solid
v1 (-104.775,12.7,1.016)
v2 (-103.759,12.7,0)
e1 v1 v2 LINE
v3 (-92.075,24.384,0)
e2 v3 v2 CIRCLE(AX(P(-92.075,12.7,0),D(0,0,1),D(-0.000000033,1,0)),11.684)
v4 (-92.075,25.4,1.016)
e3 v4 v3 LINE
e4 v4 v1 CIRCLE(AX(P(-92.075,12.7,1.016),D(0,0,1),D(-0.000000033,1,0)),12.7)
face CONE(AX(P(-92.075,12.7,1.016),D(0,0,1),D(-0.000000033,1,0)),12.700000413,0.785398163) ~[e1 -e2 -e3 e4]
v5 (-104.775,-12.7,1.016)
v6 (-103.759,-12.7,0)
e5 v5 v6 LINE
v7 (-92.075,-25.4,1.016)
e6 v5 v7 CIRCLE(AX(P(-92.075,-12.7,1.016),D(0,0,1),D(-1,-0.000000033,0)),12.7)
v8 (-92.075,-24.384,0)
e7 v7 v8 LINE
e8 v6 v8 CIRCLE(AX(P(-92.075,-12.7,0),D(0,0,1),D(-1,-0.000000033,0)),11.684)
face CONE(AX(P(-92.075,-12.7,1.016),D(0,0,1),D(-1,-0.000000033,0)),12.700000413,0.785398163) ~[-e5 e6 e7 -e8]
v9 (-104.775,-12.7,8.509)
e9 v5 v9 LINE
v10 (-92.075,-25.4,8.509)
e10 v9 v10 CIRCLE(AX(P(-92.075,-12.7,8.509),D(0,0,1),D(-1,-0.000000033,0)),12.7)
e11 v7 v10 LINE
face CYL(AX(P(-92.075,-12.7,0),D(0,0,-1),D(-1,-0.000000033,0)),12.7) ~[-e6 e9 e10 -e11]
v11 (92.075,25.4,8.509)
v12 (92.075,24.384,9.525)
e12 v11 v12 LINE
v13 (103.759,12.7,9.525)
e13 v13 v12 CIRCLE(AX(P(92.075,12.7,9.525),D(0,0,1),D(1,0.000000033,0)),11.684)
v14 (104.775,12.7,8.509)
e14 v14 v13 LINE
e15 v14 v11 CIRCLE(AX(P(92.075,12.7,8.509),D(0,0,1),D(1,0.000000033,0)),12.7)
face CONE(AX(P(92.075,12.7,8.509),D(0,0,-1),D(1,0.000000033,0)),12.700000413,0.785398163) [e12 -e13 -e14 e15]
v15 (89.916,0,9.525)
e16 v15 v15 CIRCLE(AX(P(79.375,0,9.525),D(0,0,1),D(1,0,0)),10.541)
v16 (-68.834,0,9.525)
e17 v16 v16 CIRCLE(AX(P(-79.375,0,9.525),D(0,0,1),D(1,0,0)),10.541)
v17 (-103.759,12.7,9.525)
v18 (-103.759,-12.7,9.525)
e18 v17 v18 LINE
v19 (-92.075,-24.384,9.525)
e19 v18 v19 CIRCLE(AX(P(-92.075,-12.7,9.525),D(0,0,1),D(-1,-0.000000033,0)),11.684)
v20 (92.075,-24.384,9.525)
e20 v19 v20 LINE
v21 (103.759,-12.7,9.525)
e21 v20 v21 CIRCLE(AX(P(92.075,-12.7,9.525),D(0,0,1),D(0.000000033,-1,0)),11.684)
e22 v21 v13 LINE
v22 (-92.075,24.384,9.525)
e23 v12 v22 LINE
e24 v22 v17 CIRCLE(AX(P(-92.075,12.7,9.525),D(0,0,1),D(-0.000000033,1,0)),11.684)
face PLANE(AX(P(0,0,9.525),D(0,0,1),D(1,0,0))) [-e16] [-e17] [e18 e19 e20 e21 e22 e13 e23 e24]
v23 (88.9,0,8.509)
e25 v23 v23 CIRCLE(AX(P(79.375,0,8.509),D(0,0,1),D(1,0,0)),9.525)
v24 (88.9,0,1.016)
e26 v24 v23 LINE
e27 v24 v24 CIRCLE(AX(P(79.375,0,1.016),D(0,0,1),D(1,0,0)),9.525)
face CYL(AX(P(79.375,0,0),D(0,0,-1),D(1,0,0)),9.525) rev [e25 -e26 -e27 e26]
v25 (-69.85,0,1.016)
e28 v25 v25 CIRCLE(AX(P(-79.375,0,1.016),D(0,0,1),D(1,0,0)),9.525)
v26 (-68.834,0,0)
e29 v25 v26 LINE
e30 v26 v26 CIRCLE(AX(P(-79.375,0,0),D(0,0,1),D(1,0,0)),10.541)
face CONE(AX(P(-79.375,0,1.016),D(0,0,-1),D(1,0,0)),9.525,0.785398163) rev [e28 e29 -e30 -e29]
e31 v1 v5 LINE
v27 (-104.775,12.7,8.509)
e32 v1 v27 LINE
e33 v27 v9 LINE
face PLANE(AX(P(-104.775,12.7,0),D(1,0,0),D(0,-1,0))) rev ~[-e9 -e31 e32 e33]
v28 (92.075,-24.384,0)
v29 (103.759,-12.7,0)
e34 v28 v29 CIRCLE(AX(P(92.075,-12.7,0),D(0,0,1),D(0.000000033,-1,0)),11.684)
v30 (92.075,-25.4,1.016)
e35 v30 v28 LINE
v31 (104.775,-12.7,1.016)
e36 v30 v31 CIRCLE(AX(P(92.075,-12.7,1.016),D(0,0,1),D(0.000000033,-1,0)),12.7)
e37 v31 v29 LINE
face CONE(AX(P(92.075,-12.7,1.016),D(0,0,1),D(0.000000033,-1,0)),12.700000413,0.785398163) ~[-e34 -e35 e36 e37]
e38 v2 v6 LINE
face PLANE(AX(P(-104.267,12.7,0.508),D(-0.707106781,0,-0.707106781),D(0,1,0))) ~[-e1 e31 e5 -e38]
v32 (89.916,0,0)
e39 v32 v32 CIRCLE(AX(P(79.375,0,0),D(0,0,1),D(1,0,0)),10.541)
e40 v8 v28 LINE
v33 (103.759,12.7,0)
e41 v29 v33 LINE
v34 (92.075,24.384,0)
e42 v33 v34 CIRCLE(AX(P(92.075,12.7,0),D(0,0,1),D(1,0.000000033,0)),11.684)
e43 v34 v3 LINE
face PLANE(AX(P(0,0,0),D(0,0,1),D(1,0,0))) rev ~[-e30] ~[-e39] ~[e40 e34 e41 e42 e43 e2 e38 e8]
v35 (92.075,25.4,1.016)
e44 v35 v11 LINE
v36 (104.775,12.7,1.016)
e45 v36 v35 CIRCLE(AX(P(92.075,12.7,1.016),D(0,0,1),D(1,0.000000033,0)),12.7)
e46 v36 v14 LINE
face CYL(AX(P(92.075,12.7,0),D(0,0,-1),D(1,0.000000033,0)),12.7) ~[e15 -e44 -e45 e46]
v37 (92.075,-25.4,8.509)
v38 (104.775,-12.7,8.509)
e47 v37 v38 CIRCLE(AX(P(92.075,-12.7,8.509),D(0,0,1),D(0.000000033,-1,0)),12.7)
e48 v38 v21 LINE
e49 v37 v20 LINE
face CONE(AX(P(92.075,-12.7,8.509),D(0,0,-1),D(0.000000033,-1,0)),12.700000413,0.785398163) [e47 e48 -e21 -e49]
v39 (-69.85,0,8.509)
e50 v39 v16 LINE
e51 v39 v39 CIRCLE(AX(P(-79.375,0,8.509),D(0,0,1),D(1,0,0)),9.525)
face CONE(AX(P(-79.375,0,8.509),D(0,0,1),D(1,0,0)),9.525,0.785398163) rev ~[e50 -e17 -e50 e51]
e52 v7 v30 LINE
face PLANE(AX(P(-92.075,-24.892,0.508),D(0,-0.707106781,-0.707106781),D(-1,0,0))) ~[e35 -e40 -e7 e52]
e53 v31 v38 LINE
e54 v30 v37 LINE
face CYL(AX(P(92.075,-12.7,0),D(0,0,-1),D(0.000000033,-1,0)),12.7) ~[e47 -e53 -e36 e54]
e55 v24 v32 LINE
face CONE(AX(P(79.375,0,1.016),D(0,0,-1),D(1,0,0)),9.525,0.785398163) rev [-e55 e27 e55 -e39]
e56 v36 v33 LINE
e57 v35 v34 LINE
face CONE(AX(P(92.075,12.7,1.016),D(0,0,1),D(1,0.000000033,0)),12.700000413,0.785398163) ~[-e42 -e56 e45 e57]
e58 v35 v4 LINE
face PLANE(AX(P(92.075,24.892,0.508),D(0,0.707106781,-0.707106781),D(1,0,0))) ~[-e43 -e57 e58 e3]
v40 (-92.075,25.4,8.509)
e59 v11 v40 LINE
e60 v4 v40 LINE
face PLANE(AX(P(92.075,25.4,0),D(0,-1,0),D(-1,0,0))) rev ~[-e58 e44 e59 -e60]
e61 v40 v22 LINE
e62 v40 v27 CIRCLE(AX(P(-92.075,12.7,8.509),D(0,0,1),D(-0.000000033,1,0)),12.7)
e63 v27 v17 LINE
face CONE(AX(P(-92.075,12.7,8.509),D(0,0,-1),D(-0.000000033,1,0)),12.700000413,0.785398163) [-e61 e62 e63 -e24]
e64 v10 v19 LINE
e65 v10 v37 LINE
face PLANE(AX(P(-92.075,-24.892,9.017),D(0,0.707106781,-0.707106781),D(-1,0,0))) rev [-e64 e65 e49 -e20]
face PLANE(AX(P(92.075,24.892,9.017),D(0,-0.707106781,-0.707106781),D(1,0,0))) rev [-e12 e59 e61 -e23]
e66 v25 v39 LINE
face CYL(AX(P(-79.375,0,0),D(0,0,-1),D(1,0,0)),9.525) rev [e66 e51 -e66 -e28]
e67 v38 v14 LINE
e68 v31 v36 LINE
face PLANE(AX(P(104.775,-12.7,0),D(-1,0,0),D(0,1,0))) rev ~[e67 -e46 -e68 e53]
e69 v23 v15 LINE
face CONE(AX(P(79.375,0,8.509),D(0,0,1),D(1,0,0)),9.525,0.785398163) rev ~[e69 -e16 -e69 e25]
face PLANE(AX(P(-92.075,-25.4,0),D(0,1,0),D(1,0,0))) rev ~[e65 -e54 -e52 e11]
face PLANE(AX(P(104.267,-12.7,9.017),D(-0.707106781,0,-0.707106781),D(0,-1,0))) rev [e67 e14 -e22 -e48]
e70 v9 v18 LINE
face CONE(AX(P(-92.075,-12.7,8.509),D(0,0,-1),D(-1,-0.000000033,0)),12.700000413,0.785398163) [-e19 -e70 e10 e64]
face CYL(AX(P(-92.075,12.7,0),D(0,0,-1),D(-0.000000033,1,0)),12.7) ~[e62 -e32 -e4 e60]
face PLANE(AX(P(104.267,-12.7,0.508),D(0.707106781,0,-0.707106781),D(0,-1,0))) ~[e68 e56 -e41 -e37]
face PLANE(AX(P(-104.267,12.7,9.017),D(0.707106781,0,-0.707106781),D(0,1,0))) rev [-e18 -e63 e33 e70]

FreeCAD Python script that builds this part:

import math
import FreeCAD as App
import Part
import Sketcher

V = App.Vector
Q = App.Units.Quantity


def edges_at(feature, points):
    """Names of the edges that pass closest to the given points."""
    edges = feature.Shape.Edges
    near = lambda p: min(range(len(edges)), key=lambda i: edges[i].distToShape(Part.Vertex(*p))[0])
    return sorted({f"Edge{near(p) + 1}" for p in points})

doc = App.newDocument("Part")
body = doc.addObject("PartDesign::Body", "Body")

# Sketch on XY plane
sketch1 = doc.addObject("Sketcher::SketchObject", "Sketch")
body.addObject(sketch1)
sketch1.AttachmentSupport = (doc.XY_Plane, [""])
sketch1.MapMode = "FlatFace"
sketch1.addGeometry([
    Part.LineSegment(V(92.075, 25.4, 0), V(-92.075, 25.4, 0)),  # 0
    Part.ArcOfCircle(Part.Circle(V(-92.075, 12.7, 0), V(0, 0, 1), 12.7), math.radians(90.000002), math.radians(179.999998)),  # 1
    Part.LineSegment(V(-104.775, 12.7, 0), V(-104.775, -12.7, 0)),  # 2
    Part.ArcOfCircle(Part.Circle(V(-92.075, -12.7, 0), V(0, 0, 1), 12.7), math.radians(-179.999998), math.radians(-90.000002)),  # 3
    Part.LineSegment(V(-92.075, -25.4, 0), V(92.075, -25.4, 0)),  # 4
    Part.ArcOfCircle(Part.Circle(V(92.075, -12.7, 0), V(0, 0, 1), 12.7), math.radians(-89.999998), math.radians(-0.000002)),  # 5
    Part.LineSegment(V(104.775, -12.7, 0), V(104.775, 12.7, 0)),  # 6
    Part.ArcOfCircle(Part.Circle(V(92.075, 12.7, 0), V(0, 0, 1), 12.7), math.radians(0.000002), math.radians(89.999998)),  # 7
    Part.Circle(V(-79.375, 0, 0), V(0, 0, 1), 9.525),  # 8
    Part.Circle(V(79.375, 0, 0), V(0, 0, 1), 9.525),  # 9
], False)
sketch1.addConstraint([
    Sketcher.Constraint("Tangent", 0, 2, 1, 1),
    Sketcher.Constraint("Tangent", 1, 2, 2, 1),
    Sketcher.Constraint("Tangent", 2, 2, 3, 1),
    Sketcher.Constraint("Tangent", 3, 2, 4, 1),
    Sketcher.Constraint("Tangent", 4, 2, 5, 1),
    Sketcher.Constraint("Tangent", 5, 2, 6, 1),
    Sketcher.Constraint("Tangent", 6, 2, 7, 1),
    Sketcher.Constraint("Tangent", 7, 2, 0, 1),
    Sketcher.Constraint("Horizontal", 0),
    Sketcher.Constraint("Vertical", 2),
    Sketcher.Constraint("Horizontal", 4),
    Sketcher.Constraint("Vertical", 6),
    Sketcher.Constraint("Equal", 1, 3),
    Sketcher.Constraint("Equal", 3, 5),
    Sketcher.Constraint("Equal", 5, 7),
    Sketcher.Constraint("Equal", 8, 9),
    Sketcher.Constraint("Symmetric", 1, 3, 5, 3, -1, 1),
    Sketcher.Constraint("Symmetric", 8, 3, 9, 3, -1, 1),
    Sketcher.Constraint("PointOnObject", 8, 3, -1),
    Sketcher.Constraint("Radius", 1, Q("0.5 in")),
    Sketcher.Constraint("Diameter", 8, Q("0.75 in")),
    Sketcher.Constraint("DistanceY", 2, 2, 2, 1, Q("1 in")),
    Sketcher.Constraint("DistanceX", 1, 2, 8, 3, Q("1 in")),
    Sketcher.Constraint("DistanceX", 0, 2, 0, 1, Q("7.25 in")),
])
pad1 = doc.addObject("PartDesign::Pad", "Pad")
body.addObject(pad1)
pad1.Profile = sketch1
pad1.Length = Q("0.375 in")
doc.recompute()

chamfer = doc.addObject("PartDesign::Chamfer", "Chamfer")
body.addObject(chamfer)
chamfer.Base = (pad1, edges_at(pad1, [
    (0, 25.4, 9.525),
    (-101.055, 21.68, 9.525),
    (-104.775, 0, 9.525),
    (-101.055, -21.68, 9.525),
    (0, -25.4, 9.525),
    (101.055, -21.68, 9.525),
    (104.775, 0, 9.525),
    (101.055, 21.68, 9.525),
    (-88.9, 0, 9.525),
    (69.85, 0, 9.525),
    (0, 25.4, 0),
    (-101.055, 21.68, 0),
    (-104.775, 0, 0),
    (-101.055, -21.68, 0),
    (0, -25.4, 0),
    (101.055, -21.68, 0),
    (104.775, 0, 0),
    (101.055, 21.68, 0),
    (-88.9, 0, 0),
    (69.85, 0, 0),
]))
chamfer.Size = Q("0.04 in")

doc.recompute()
